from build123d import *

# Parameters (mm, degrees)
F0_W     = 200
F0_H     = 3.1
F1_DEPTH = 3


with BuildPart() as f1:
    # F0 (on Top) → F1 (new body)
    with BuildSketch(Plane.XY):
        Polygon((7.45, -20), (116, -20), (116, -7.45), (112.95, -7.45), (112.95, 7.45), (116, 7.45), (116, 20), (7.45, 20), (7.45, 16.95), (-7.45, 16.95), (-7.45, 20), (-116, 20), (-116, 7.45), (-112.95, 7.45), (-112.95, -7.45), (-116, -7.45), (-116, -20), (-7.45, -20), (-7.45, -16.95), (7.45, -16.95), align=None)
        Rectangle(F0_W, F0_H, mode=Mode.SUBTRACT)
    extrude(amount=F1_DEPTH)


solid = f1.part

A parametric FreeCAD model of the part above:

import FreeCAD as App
import Part
import Sketcher

V = App.Vector


def add_polygon(sketch, points):
    """Adds a closed chain of lines whose ends are joined by coincident constraints."""
    first, n = sketch.GeometryCount, len(points)
    for a, b in zip(points, points[1:] + points[:1]):
        sketch.addGeometry(Part.LineSegment(App.Vector(*a, 0), App.Vector(*b, 0)), False)
    for i in range(n):
        sketch.addConstraint(Sketcher.Constraint("Coincident", first + i, 2, first + (i + 1) % n, 1))

doc = App.newDocument("Part")
body = doc.addObject("PartDesign::Body", "Body")

# Sketch on XY plane
sketch1 = doc.addObject("Sketcher::SketchObject", "Sketch")
body.addObject(sketch1)
sketch1.AttachmentSupport = (doc.XY_Plane, [""])
sketch1.MapMode = "FlatFace"
add_polygon(sketch1, [(7.5, -20), (116, -20), (116, -7.5), (113, -7.5), (113, 7.5), (116, 7.5), (116, 20), (7.5, 20), (7.5, 16.9), (-7.5, 16.9), (-7.5, 20), (-116, 20), (-116, 7.5), (-113, 7.5), (-113, -7.5), (-116, -7.5), (-116, -20), (-7.5, -20), (-7.5, -16.9), (7.5, -16.9)])  # lines 0-19
add_polygon(sketch1, [(100, -1.6), (-100, -1.6), (-100, 1.6), (100, 1.6)])  # lines 20-23
sketch1.addConstraint(Sketcher.Constraint("Horizontal", 0))
sketch1.addConstraint(Sketcher.Constraint("Vertical", 1))
sketch1.addConstraint(Sketcher.Constraint("Horizontal", 2))
sketch1.addConstraint(Sketcher.Constraint("Vertical", 3))
sketch1.addConstraint(Sketcher.Constraint("Horizontal", 4))
sketch1.addConstraint(Sketcher.Constraint("Vertical", 5))
sketch1.addConstraint(Sketcher.Constraint("Horizontal", 6))
sketch1.addConstraint(Sketcher.Constraint("Vertical", 7))
sketch1.addConstraint(Sketcher.Constraint("Horizontal", 8))
sketch1.addConstraint(Sketcher.Constraint("Vertical", 9))
sketch1.addConstraint(Sketcher.Constraint("Horizontal", 10))
sketch1.addConstraint(Sketcher.Constraint("Vertical", 11))
sketch1.addConstraint(Sketcher.Constraint("Horizontal", 12))
sketch1.addConstraint(Sketcher.Constraint("Vertical", 13))
sketch1.addConstraint(Sketcher.Constraint("Horizontal", 14))
sketch1.addConstraint(Sketcher.Constraint("Vertical", 15))
sketch1.addConstraint(Sketcher.Constraint("Horizontal", 16))
sketch1.addConstraint(Sketcher.Constraint("Vertical", 17))
sketch1.addConstraint(Sketcher.Constraint("Horizontal", 18))
sketch1.addConstraint(Sketcher.Constraint("Vertical", 19))
sketch1.addConstraint(Sketcher.Constraint("Horizontal", 20))
sketch1.addConstraint(Sketcher.Constraint("Vertical", 21))
sketch1.addConstraint(Sketcher.Constraint("Horizontal", 22))
sketch1.addConstraint(Sketcher.Constraint("Vertical", 23))
sketch1.addConstraint(Sketcher.Constraint("Symmetric", 0, 2, 10, 2, -1, 1))
sketch1.addConstraint(Sketcher.Constraint("Symmetric", 2, 2, 12, 2, -1, 1))
sketch1.addConstraint(Sketcher.Constraint("Symmetric", 4, 2, 14, 2, -1, 1))
sketch1.addConstraint(Sketcher.Constraint("Symmetric", 6, 2, 16, 2, -1, 1))
sketch1.addConstraint(Sketcher.Constraint("Symmetric", 8, 2, 18, 2, -1, 1))
sketch1.addConstraint(Sketcher.Constraint("Symmetric", 20, 2, 22, 2, -1, 1))
sketch1.addConstraint(Sketcher.Constraint("Symmetric", 6, 2, 9, 2, -2))
sketch1.addConstraint(Sketcher.Constraint("Symmetric", 4, 2, 11, 2, -2))
sketch1.addConstraint(Sketcher.Constraint("Equal", 18, 3))
sketch1.addConstraint(Sketcher.Constraint("Equal", 14, 7))
sketch1.addConstraint(Sketcher.Constraint("DistanceX", 20, 2, 20, 1, 200.0))
sketch1.addConstraint(Sketcher.Constraint("DistanceX", 8, 2, 8, 1, 14.9))
sketch1.addConstraint(Sketcher.Constraint("DistanceY", 21, 1, 21, 2, 3.1))
sketch1.addConstraint(Sketcher.Constraint("DistanceX", -1, 1, 0, 2, 116.0))
sketch1.addConstraint(Sketcher.Constraint("DistanceY", 0, 2, -1, 1, 20.0))
sketch1.addConstraint(Sketcher.Constraint("DistanceX", 2, 2, 2, 1, 3.05))
pad1 = doc.addObject("PartDesign::Pad", "Pad")
body.addObject(pad1)
pad1.Profile = sketch1
pad1.Length = 3

doc.recompute()
